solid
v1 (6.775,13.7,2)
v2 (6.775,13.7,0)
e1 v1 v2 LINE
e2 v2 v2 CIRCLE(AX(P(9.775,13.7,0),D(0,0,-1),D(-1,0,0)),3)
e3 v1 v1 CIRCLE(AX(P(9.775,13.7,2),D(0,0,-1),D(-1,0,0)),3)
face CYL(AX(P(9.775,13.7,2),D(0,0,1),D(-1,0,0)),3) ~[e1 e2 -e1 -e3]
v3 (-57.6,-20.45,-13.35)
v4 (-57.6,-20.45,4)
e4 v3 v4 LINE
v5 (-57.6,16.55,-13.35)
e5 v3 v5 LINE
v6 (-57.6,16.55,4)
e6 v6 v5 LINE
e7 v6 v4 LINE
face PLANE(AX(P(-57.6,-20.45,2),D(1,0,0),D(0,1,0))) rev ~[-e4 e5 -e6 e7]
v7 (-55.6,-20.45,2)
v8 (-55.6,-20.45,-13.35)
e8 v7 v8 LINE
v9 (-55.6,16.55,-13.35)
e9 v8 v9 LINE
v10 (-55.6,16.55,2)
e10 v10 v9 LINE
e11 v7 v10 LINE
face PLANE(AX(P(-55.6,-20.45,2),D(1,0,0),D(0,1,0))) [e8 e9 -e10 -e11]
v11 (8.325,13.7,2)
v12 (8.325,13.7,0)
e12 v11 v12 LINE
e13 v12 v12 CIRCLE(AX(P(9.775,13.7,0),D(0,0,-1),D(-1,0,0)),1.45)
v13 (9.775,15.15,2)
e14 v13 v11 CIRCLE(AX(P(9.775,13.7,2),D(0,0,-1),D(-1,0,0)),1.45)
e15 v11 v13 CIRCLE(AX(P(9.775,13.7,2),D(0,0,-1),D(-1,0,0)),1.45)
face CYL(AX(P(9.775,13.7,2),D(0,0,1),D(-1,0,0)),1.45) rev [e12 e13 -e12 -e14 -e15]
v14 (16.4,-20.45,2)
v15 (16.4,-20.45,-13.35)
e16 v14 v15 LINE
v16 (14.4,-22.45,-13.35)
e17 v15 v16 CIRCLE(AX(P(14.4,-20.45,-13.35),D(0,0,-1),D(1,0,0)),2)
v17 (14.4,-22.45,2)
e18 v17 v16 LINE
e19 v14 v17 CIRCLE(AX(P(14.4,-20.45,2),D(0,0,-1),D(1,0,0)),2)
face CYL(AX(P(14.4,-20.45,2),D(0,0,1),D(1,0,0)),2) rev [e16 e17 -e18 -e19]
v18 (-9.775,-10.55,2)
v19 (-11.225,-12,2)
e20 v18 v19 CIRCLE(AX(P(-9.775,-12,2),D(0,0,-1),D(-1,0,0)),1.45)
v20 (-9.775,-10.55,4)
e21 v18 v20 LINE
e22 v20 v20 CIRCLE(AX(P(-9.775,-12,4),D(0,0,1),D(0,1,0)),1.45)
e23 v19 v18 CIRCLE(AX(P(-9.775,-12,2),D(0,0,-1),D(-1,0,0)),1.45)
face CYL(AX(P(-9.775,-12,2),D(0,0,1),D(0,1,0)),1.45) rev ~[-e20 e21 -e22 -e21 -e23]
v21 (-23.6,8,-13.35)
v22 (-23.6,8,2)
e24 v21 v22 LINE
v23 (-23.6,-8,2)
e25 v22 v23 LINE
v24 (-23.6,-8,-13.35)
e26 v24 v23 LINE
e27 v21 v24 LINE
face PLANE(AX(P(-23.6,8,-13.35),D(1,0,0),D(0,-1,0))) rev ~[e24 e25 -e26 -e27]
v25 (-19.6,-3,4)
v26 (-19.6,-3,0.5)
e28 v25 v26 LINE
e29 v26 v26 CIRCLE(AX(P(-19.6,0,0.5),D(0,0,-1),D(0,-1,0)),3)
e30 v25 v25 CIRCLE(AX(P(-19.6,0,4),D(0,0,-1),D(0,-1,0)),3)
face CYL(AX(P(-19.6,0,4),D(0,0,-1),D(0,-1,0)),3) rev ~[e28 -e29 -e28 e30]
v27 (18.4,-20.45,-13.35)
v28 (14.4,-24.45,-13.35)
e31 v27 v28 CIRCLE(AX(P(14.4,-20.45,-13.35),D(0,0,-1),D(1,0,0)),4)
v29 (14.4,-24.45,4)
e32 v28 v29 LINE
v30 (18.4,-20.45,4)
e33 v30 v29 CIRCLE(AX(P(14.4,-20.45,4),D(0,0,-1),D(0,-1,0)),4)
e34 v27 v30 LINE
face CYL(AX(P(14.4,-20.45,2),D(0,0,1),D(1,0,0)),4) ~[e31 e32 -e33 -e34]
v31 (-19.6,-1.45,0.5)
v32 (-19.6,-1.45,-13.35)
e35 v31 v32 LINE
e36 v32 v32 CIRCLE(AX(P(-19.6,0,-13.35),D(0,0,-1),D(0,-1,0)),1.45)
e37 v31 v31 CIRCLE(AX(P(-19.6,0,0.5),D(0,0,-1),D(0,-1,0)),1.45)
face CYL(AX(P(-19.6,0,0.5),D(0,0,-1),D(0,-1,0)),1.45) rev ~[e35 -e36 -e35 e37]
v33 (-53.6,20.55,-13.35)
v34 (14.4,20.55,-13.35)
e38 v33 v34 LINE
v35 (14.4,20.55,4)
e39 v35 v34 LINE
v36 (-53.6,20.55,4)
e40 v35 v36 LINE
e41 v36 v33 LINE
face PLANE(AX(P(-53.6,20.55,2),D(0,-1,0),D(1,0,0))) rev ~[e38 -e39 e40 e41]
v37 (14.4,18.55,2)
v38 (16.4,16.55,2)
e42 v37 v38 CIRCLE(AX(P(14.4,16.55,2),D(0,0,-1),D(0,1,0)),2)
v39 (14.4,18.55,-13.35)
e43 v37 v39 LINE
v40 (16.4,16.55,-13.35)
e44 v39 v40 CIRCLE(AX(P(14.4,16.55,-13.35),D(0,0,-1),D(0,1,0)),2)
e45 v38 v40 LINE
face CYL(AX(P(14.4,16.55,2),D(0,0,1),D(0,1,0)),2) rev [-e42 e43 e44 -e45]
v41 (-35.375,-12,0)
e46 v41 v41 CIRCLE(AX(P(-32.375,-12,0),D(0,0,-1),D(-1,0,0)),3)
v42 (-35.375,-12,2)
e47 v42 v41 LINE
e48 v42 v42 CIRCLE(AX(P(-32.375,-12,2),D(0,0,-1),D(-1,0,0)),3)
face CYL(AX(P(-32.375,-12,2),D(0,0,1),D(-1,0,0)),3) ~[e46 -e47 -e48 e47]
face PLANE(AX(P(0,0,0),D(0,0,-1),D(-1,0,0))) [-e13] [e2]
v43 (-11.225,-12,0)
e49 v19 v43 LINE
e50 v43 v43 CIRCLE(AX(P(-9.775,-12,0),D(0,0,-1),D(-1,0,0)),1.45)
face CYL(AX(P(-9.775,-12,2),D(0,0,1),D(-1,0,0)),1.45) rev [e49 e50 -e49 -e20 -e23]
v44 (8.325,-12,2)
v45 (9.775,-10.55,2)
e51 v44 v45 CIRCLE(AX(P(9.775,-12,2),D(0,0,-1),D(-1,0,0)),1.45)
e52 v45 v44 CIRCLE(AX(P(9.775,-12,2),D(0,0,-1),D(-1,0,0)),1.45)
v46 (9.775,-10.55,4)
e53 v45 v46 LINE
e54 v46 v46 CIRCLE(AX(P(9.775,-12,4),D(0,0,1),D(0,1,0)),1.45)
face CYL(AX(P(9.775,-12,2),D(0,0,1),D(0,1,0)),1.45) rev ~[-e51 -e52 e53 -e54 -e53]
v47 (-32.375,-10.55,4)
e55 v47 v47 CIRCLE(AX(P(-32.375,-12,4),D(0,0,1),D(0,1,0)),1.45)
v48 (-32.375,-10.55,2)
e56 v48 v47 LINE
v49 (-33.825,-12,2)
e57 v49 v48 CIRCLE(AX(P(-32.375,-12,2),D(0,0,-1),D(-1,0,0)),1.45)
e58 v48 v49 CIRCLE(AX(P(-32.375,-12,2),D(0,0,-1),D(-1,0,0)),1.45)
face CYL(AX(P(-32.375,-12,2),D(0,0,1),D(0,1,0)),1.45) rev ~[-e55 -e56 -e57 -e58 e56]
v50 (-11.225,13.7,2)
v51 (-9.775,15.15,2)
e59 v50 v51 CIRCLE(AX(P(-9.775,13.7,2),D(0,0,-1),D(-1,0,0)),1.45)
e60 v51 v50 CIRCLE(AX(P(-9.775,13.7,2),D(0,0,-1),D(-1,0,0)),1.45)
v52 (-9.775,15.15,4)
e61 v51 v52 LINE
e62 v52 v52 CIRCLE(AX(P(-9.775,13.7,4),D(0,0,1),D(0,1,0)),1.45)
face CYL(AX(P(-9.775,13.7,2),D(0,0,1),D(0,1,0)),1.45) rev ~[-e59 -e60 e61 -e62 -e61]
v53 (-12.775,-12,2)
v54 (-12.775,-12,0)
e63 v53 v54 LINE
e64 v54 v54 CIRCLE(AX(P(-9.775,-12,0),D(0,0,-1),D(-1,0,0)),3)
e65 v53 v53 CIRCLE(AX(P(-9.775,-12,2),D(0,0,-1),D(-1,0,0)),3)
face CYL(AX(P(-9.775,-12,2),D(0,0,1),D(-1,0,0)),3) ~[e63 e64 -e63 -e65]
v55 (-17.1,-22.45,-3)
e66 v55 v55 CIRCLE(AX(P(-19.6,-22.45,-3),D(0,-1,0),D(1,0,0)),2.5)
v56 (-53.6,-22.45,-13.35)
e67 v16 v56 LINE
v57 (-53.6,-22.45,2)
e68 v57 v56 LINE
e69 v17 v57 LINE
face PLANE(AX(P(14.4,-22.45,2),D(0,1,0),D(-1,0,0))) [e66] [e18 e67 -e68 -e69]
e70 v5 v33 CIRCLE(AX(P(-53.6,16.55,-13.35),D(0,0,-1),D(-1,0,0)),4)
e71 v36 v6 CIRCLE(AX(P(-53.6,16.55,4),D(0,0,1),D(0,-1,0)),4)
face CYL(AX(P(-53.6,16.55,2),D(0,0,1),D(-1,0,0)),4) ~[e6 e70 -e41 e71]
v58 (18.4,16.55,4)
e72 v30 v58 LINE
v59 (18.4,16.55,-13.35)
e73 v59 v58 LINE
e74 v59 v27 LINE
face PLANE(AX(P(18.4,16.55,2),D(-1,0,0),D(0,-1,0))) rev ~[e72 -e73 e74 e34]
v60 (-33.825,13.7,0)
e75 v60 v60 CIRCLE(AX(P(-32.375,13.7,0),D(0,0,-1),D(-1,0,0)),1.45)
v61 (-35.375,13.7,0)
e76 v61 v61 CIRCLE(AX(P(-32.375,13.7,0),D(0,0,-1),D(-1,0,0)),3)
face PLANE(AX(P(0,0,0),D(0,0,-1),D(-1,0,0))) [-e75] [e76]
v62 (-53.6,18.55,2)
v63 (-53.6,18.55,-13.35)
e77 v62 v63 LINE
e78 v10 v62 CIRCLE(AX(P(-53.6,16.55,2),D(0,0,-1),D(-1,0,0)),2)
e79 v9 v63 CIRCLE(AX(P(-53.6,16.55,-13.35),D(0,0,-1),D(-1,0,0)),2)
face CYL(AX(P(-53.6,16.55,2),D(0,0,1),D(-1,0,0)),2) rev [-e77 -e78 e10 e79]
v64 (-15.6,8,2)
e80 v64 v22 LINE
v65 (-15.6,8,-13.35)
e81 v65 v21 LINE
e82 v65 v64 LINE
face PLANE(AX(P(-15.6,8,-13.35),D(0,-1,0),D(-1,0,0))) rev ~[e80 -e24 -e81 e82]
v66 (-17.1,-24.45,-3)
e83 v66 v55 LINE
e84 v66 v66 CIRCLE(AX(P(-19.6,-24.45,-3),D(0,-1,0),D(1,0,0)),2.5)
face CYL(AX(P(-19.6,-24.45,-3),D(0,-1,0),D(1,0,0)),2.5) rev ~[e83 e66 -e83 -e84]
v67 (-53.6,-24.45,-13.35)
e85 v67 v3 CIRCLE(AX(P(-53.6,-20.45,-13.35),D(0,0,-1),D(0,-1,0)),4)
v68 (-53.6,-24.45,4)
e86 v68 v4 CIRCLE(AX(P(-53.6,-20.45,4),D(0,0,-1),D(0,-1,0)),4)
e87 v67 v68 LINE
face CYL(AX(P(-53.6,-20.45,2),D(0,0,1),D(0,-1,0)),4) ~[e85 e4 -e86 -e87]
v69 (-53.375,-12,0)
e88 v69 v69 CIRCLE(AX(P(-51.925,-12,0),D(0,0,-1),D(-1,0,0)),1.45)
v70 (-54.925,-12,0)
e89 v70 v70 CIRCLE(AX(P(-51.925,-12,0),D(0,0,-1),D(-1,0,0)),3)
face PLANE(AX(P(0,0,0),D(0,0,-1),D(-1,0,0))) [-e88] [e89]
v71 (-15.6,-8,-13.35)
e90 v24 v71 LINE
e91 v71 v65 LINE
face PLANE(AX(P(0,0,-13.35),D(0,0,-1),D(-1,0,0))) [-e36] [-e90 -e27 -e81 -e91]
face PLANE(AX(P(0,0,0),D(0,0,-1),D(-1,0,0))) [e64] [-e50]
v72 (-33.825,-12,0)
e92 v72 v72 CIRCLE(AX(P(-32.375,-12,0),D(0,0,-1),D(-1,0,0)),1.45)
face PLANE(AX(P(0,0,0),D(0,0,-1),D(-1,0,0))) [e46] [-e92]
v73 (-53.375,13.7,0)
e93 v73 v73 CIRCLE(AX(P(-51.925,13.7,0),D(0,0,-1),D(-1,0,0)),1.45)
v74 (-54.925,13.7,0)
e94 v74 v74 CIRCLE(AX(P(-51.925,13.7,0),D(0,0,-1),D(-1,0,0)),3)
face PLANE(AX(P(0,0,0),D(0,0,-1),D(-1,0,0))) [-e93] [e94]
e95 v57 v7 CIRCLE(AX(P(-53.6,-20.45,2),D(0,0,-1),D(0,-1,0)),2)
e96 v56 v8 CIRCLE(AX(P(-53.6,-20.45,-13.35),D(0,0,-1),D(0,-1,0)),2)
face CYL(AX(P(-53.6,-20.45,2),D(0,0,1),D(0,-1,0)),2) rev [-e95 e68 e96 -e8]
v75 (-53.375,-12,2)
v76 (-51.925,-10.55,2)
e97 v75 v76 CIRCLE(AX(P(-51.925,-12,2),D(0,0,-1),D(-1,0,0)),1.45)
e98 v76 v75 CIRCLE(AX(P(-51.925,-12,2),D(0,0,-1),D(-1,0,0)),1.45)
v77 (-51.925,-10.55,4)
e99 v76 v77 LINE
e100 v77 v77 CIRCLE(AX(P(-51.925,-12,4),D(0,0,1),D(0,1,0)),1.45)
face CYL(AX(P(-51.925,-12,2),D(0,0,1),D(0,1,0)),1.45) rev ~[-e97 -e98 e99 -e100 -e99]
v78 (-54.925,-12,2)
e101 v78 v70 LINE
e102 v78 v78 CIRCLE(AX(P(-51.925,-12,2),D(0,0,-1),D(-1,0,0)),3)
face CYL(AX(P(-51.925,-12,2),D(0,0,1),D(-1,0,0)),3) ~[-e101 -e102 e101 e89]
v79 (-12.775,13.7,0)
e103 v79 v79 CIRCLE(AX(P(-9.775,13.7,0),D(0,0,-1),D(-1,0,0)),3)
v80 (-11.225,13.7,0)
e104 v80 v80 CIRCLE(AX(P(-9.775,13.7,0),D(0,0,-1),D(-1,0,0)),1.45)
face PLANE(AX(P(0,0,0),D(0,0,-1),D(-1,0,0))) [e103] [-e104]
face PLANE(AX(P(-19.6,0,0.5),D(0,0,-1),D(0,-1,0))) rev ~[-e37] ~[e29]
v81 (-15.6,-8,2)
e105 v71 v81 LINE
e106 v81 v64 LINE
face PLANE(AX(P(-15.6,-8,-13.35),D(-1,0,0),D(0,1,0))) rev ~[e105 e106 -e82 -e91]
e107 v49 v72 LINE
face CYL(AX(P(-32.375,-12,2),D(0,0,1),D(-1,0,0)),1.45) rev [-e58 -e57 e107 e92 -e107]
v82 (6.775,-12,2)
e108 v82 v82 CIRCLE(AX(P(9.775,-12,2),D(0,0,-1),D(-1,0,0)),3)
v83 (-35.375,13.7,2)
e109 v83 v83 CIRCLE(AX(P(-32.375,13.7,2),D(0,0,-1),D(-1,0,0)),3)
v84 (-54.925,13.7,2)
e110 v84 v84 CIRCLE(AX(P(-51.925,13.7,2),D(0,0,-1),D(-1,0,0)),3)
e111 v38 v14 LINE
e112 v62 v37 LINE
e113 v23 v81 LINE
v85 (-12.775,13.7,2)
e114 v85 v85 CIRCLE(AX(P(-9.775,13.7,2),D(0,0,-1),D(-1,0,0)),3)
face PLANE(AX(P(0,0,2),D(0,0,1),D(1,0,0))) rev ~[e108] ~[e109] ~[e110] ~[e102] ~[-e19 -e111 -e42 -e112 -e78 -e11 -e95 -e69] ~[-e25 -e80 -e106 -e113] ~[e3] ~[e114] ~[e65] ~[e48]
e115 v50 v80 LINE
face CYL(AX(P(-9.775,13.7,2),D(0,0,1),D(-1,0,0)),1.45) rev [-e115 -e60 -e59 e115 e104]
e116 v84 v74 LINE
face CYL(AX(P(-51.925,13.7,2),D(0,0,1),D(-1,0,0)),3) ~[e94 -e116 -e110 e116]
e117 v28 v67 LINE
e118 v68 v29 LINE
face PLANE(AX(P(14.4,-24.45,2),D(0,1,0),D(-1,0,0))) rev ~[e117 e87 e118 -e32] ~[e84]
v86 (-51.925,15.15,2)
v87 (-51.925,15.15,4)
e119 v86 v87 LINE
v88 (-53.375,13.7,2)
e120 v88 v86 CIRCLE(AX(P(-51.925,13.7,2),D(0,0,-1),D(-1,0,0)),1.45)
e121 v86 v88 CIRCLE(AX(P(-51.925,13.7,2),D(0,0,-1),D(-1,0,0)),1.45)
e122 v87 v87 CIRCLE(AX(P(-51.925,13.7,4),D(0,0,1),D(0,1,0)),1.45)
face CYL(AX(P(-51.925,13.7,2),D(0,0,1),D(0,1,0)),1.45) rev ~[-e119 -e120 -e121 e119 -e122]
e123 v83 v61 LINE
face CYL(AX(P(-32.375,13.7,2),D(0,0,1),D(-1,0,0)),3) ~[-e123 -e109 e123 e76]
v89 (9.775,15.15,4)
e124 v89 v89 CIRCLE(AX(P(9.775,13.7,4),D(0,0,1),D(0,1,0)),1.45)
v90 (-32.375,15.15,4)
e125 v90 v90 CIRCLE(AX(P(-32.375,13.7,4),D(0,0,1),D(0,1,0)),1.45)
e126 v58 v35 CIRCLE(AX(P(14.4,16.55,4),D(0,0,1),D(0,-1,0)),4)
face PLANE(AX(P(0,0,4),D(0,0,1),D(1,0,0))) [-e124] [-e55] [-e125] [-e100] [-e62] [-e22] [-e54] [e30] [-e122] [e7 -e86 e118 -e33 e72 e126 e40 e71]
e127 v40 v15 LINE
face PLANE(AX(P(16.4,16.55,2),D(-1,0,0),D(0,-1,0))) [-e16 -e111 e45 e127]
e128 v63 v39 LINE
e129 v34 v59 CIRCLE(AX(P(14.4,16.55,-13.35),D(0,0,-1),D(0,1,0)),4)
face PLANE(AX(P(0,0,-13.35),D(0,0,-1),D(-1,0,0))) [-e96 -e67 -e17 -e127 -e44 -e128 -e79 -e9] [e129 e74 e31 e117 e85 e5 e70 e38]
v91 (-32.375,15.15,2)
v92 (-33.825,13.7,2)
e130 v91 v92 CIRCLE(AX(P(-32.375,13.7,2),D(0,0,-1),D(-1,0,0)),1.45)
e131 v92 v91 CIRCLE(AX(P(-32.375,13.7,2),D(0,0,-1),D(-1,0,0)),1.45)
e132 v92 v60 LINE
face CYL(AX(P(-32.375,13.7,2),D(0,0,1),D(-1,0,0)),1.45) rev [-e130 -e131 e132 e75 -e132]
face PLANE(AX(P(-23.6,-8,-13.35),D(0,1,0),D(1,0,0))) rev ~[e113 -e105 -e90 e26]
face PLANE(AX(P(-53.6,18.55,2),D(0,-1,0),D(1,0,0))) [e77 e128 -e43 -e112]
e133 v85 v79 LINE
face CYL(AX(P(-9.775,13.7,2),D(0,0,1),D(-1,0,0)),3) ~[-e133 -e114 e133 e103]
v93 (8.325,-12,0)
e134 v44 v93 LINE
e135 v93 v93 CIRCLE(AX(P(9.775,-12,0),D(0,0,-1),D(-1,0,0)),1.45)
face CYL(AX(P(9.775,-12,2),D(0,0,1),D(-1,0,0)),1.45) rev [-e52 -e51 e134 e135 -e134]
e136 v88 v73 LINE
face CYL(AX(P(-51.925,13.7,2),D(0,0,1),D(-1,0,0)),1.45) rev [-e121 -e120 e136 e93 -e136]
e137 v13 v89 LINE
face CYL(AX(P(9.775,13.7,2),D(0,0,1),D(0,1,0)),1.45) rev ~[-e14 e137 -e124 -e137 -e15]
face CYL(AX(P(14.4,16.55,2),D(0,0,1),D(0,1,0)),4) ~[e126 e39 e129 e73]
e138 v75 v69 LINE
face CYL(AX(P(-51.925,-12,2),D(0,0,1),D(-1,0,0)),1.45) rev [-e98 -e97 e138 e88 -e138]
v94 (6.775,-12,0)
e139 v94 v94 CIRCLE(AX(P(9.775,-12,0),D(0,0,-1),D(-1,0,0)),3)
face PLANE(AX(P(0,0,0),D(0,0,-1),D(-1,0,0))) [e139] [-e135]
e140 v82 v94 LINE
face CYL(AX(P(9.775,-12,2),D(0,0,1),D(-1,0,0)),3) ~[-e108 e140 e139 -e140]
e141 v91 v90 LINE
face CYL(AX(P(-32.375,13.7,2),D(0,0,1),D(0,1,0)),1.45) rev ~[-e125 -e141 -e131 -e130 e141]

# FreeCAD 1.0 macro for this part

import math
import FreeCAD as App
import Part
import Sketcher
Q = App.Units.Quantity


def edges_at(feature, points):
    """Names of the edges that pass closest to the given points."""
    edges = feature.Shape.Edges
    near = lambda p: min(range(len(edges)), key=lambda i: edges[i].distToShape(Part.Vertex(*p))[0])
    return sorted({f"Edge{near(p) + 1}" for p in points})


def add_polygon(sketch, points):
    """Adds a closed chain of lines whose ends are joined by coincident constraints."""
    first, n = sketch.GeometryCount, len(points)
    for a, b in zip(points, points[1:] + points[:1]):
        sketch.addGeometry(Part.LineSegment(App.Vector(*a, 0), App.Vector(*b, 0)), False)
    for i in range(n):
        sketch.addConstraint(Sketcher.Constraint("Coincident", first + i, 2, first + (i + 1) % n, 1))

doc = App.newDocument("Part")
body = doc.addObject("PartDesign::Body", "Body")

# Sketch on XY plane
sketch1 = body.newObject("Sketcher::SketchObject", "Sketch")
sketch1.AttachmentSupport = (doc.getObject("XY_Plane"), [""])
sketch1.MapMode = "FlatFace"
sketch1.AttachmentOffset = App.Placement(App.Vector(0, 0, 2), App.Rotation())
add_polygon(sketch1, [(18.4, -24.45), (18.4, 20.55), (-57.6, 20.55), (-57.6, -24.45)])  # lines 0-3
sketch1.addConstraint(Sketcher.Constraint("Vertical", 0))
sketch1.addConstraint(Sketcher.Constraint("Horizontal", 1))
sketch1.addConstraint(Sketcher.Constraint("Vertical", 2))
sketch1.addConstraint(Sketcher.Constraint("Horizontal", 3))
sketch1.addConstraint(Sketcher.Constraint("DistanceX", 1, 2, 1, 1, Q("76 mm")))
sketch1.addConstraint(Sketcher.Constraint("DistanceY", 0, 1, 0, 2, Q("45 mm")))
sketch1.addConstraint(Sketcher.Constraint("DistanceX", -1, 1, 0, 2, Q("18.4 mm")))
sketch1.addConstraint(Sketcher.Constraint("DistanceY", -1, 1, 0, 2, Q("20.55 mm")))
pad1 = body.newObject("PartDesign::Pad", "Pad")
pad1.Profile = sketch1
pad1.Length = 2

# Sketch on XY plane
sketch2 = body.newObject("Sketcher::SketchObject", "Sketch001")
sketch2.AttachmentSupport = (doc.getObject("XY_Plane"), [""])
sketch2.MapMode = "FlatFace"
sketch2.AttachmentOffset = App.Placement(App.Vector(0, 0, 2), App.Rotation())
sketch2.addGeometry(Part.Circle(App.Vector(-51.925, 13.7, 0), App.Vector(0, 0, 1), 3), False)
sketch2.addGeometry(Part.Circle(App.Vector(-51.925, 13.7, 0), App.Vector(0, 0, 1), 1.45), False)
sketch2.addGeometry(Part.Circle(App.Vector(-51.925, -12, 0), App.Vector(0, 0, 1), 3), False)
sketch2.addGeometry(Part.Circle(App.Vector(-51.925, -12, 0), App.Vector(0, 0, 1), 1.45), False)
sketch2.addGeometry(Part.Circle(App.Vector(-32.375, -12, 0), App.Vector(0, 0, 1), 3), False)
sketch2.addGeometry(Part.Circle(App.Vector(-32.375, -12, 0), App.Vector(0, 0, 1), 1.45), False)
sketch2.addGeometry(Part.Circle(App.Vector(-32.375, 13.7, 0), App.Vector(0, 0, 1), 3), False)
sketch2.addGeometry(Part.Circle(App.Vector(-32.375, 13.7, 0), App.Vector(0, 0, 1), 1.45), False)
sketch2.addGeometry(Part.Circle(App.Vector(-9.775, 13.7, 0), App.Vector(0, 0, 1), 3), False)
sketch2.addGeometry(Part.Circle(App.Vector(-9.775, 13.7, 0), App.Vector(0, 0, 1), 1.45), False)
sketch2.addGeometry(Part.Circle(App.Vector(-9.775, -12, 0), App.Vector(0, 0, 1), 3), False)
sketch2.addGeometry(Part.Circle(App.Vector(-9.775, -12, 0), App.Vector(0, 0, 1), 1.45), False)
sketch2.addGeometry(Part.Circle(App.Vector(9.775, -12, 0), App.Vector(0, 0, 1), 3), False)
sketch2.addGeometry(Part.Circle(App.Vector(9.775, -12, 0), App.Vector(0, 0, 1), 1.45), False)
sketch2.addGeometry(Part.Circle(App.Vector(9.775, 13.7, 0), App.Vector(0, 0, 1), 3), False)
sketch2.addGeometry(Part.Circle(App.Vector(9.775, 13.7, 0), App.Vector(0, 0, 1), 1.45), False)
sketch2.addConstraint(Sketcher.Constraint("Coincident", 1, 3, 0, 3))
sketch2.addConstraint(Sketcher.Constraint("Coincident", 3, 3, 2, 3))
sketch2.addConstraint(Sketcher.Constraint("Coincident", 5, 3, 4, 3))
sketch2.addConstraint(Sketcher.Constraint("Coincident", 7, 3, 6, 3))
sketch2.addConstraint(Sketcher.Constraint("Coincident", 9, 3, 8, 3))
sketch2.addConstraint(Sketcher.Constraint("Coincident", 11, 3, 10, 3))
sketch2.addConstraint(Sketcher.Constraint("Coincident", 13, 3, 12, 3))
sketch2.addConstraint(Sketcher.Constraint("Coincident", 15, 3, 14, 3))
sketch2.addConstraint(Sketcher.Constraint("Equal", 0, 2))
sketch2.addConstraint(Sketcher.Constraint("Equal", 1, 3))
sketch2.addConstraint(Sketcher.Constraint("Equal", 2, 4))
sketch2.addConstraint(Sketcher.Constraint("Equal", 3, 5))
sketch2.addConstraint(Sketcher.Constraint("Equal", 4, 6))
sketch2.addConstraint(Sketcher.Constraint("Equal", 5, 7))
sketch2.addConstraint(Sketcher.Constraint("Equal", 6, 8))
sketch2.addConstraint(Sketcher.Constraint("Equal", 7, 9))
sketch2.addConstraint(Sketcher.Constraint("Equal", 8, 10))
sketch2.addConstraint(Sketcher.Constraint("Equal", 9, 11))
sketch2.addConstraint(Sketcher.Constraint("Equal", 10, 12))
sketch2.addConstraint(Sketcher.Constraint("Equal", 11, 13))
sketch2.addConstraint(Sketcher.Constraint("Equal", 12, 14))
sketch2.addConstraint(Sketcher.Constraint("Equal", 13, 15))
sketch2.addConstraint(Sketcher.Constraint("Symmetric", 10, 3, 12, 3, -2))
sketch2.addConstraint(Sketcher.Constraint("Symmetric", 8, 3, 14, 3, -2))
sketch2.addConstraint(Sketcher.Constraint("Horizontal", 3, 3, 4, 3))
sketch2.addConstraint(Sketcher.Constraint("Horizontal", 1, 3, 6, 3))
sketch2.addConstraint(Sketcher.Constraint("Horizontal", 7, 3, 8, 3))
sketch2.addConstraint(Sketcher.Constraint("Horizontal", 5, 3, 10, 3))
sketch2.addConstraint(Sketcher.Constraint("Vertical", 1, 3, 2, 3))
sketch2.addConstraint(Sketcher.Constraint("Vertical", 5, 3, 6, 3))
sketch2.addConstraint(Sketcher.Constraint("Vertical", 9, 3, 10, 3))
sketch2.addConstraint(Sketcher.Constraint("Diameter", 0, Q("6 mm")))
sketch2.addConstraint(Sketcher.Constraint("Diameter", 1, Q("2.9 mm")))
sketch2.addConstraint(Sketcher.Constraint("DistanceY", 2, 3, -1, 1, Q("12 mm")))
sketch2.addConstraint(Sketcher.Constraint("DistanceY", -1, 1, 0, 3, Q("13.7 mm")))
sketch2.addConstraint(Sketcher.Constraint("DistanceX", 6, 3, 8, 3, Q("22.6 mm")))
sketch2.addConstraint(Sketcher.Constraint("DistanceX", 2, 3, 4, 3, Q("19.55 mm")))
sketch2.addConstraint(Sketcher.Constraint("DistanceX", 10, 3, 12, 3, Q("19.55 mm")))
pad2 = body.newObject("PartDesign::Pad", "Pad001")
pad2.Profile = sketch2
pad2.Length = 2
pad2.Reversed = True
doc.recompute()

fillet = body.newObject("PartDesign::Fillet", "Fillet")
fillet.Base = (pad2, edges_at(pad2, [
    (18.4, 20.55, 3),
    (18.4, -24.45, 3),
    (-57.6, -24.45, 3),
    (-57.6, 20.55, 3),
]))
fillet.Radius = 4

# Sketch on XY plane
sketch3 = body.newObject("Sketcher::SketchObject", "Sketch002")
sketch3.AttachmentSupport = (doc.getObject("XY_Plane"), [""])
sketch3.MapMode = "FlatFace"
sketch3.AttachmentOffset = App.Placement(App.Vector(0, 0, 2), App.Rotation())
sketch3.addGeometry(Part.Circle(App.Vector(-51.925, 13.7, 0), App.Vector(0, 0, 1), 1.45), False)
sketch3.addGeometry(Part.Circle(App.Vector(-51.925, -12, 0), App.Vector(0, 0, 1), 1.45), False)
sketch3.addGeometry(Part.Circle(App.Vector(-32.375, -12, 0), App.Vector(0, 0, 1), 1.45), False)
sketch3.addGeometry(Part.Circle(App.Vector(-32.375, 13.7, 0), App.Vector(0, 0, 1), 1.45), False)
sketch3.addGeometry(Part.Circle(App.Vector(-9.775, 13.7, 0), App.Vector(0, 0, 1), 1.45), False)
sketch3.addGeometry(Part.Circle(App.Vector(9.775, 13.7, 0), App.Vector(0, 0, 1), 1.45), False)
sketch3.addGeometry(Part.Circle(App.Vector(-9.775, -12, 0), App.Vector(0, 0, 1), 1.45), False)
sketch3.addGeometry(Part.Circle(App.Vector(9.775, -12, 0), App.Vector(0, 0, 1), 1.45), False)
sketch3.addConstraint(Sketcher.Constraint("Equal", 0, 1))
sketch3.addConstraint(Sketcher.Constraint("Equal", 1, 2))
sketch3.addConstraint(Sketcher.Constraint("Equal", 2, 3))
sketch3.addConstraint(Sketcher.Constraint("Equal", 3, 4))
sketch3.addConstraint(Sketcher.Constraint("Equal", 4, 5))
sketch3.addConstraint(Sketcher.Constraint("Equal", 5, 6))
sketch3.addConstraint(Sketcher.Constraint("Equal", 6, 7))
sketch3.addConstraint(Sketcher.Constraint("Symmetric", 4, 3, 5, 3, -2))
sketch3.addConstraint(Sketcher.Constraint("Symmetric", 6, 3, 7, 3, -2))
sketch3.addConstraint(Sketcher.Constraint("Horizontal", 1, 3, 2, 3))
sketch3.addConstraint(Sketcher.Constraint("Horizontal", 0, 3, 3, 3))
sketch3.addConstraint(Sketcher.Constraint("Horizontal", 3, 3, 4, 3))
sketch3.addConstraint(Sketcher.Constraint("Horizontal", 2, 3, 6, 3))
sketch3.addConstraint(Sketcher.Constraint("Vertical", 0, 3, 1, 3))
sketch3.addConstraint(Sketcher.Constraint("Vertical", 2, 3, 3, 3))
sketch3.addConstraint(Sketcher.Constraint("Vertical", 4, 3, 6, 3))
sketch3.addConstraint(Sketcher.Constraint("Diameter", 0, Q("2.9 mm")))
sketch3.addConstraint(Sketcher.Constraint("DistanceY", 1, 3, -1, 1, Q("12 mm")))
sketch3.addConstraint(Sketcher.Constraint("DistanceY", -1, 1, 0, 3, Q("13.7 mm")))
sketch3.addConstraint(Sketcher.Constraint("DistanceX", 3, 3, 4, 3, Q("22.6 mm")))
sketch3.addConstraint(Sketcher.Constraint("DistanceX", 0, 3, 5, 3, Q("61.7 mm")))
sketch3.addConstraint(Sketcher.Constraint("DistanceX", 1, 3, 2, 3, Q("19.55 mm")))
doc.recompute()
hole = body.newObject("PartDesign::Hole", "Hole")
hole.Profile = sketch3
hole.ThreadType = "None"
hole.Diameter = 2.9
hole.DepthType = "ThroughAll"
hole.Reversed = True

# Sketch on XY plane
sketch4 = body.newObject("Sketcher::SketchObject", "Sketch003")
sketch4.AttachmentSupport = (doc.getObject("XY_Plane"), [""])
sketch4.MapMode = "FlatFace"
sketch4.AttachmentOffset = App.Placement(App.Vector(0, 0, 2), App.Rotation())
sketch4.addGeometry(Part.LineSegment(App.Vector(-57.6, -20.45, 0), App.Vector(-57.6, 16.55, 0)), False)
sketch4.addGeometry(Part.ArcOfCircle(Part.Circle(App.Vector(-53.6, 16.55, 0), App.Vector(0, 0, 1), 4), math.radians(90), math.radians(180)), False)
sketch4.addGeometry(Part.LineSegment(App.Vector(-53.6, 20.55, 0), App.Vector(14.4, 20.55, 0)), False)
sketch4.addGeometry(Part.ArcOfCircle(Part.Circle(App.Vector(14.4, 16.55, 0), App.Vector(0, 0, 1), 4), math.radians(0), math.radians(90)), False)
sketch4.addGeometry(Part.LineSegment(App.Vector(18.4, 16.55, 0), App.Vector(18.4, -20.45, 0)), False)
sketch4.addGeometry(Part.ArcOfCircle(Part.Circle(App.Vector(14.4, -20.45, 0), App.Vector(0, 0, 1), 4), math.radians(-90), math.radians(0)), False)
sketch4.addGeometry(Part.LineSegment(App.Vector(14.4, -24.45, 0), App.Vector(-53.6, -24.45, 0)), False)
sketch4.addGeometry(Part.ArcOfCircle(Part.Circle(App.Vector(-53.6, -20.45, 0), App.Vector(0, 0, 1), 4), math.radians(180), math.radians(270)), False)
sketch4.addGeometry(Part.ArcOfCircle(Part.Circle(App.Vector(-53.6, 16.55, 0), App.Vector(0, 0, 1), 2), math.radians(90), math.radians(180)), False)
sketch4.addGeometry(Part.LineSegment(App.Vector(-55.6, 16.55, 0), App.Vector(-55.6, -20.45, 0)), False)
sketch4.addGeometry(Part.ArcOfCircle(Part.Circle(App.Vector(-53.6, -20.45, 0), App.Vector(0, 0, 1), 2), math.radians(180), math.radians(270)), False)
sketch4.addGeometry(Part.LineSegment(App.Vector(-53.6, -22.45, 0), App.Vector(14.4, -22.45, 0)), False)
sketch4.addGeometry(Part.ArcOfCircle(Part.Circle(App.Vector(14.4, -20.45, 0), App.Vector(0, 0, 1), 2), math.radians(-90), math.radians(0)), False)
sketch4.addGeometry(Part.LineSegment(App.Vector(16.4, -20.45, 0), App.Vector(16.4, 16.55, 0)), False)
sketch4.addGeometry(Part.ArcOfCircle(Part.Circle(App.Vector(14.4, 16.55, 0), App.Vector(0, 0, 1), 2), math.radians(0), math.radians(90)), False)
sketch4.addGeometry(Part.LineSegment(App.Vector(14.4, 18.55, 0), App.Vector(-53.6, 18.55, 0)), False)
sketch4.addConstraint(Sketcher.Constraint("Tangent", 0, 2, 1, 2))
sketch4.addConstraint(Sketcher.Constraint("Tangent", 1, 1, 2, 1))
sketch4.addConstraint(Sketcher.Constraint("Tangent", 2, 2, 3, 2))
sketch4.addConstraint(Sketcher.Constraint("Tangent", 3, 1, 4, 1))
sketch4.addConstraint(Sketcher.Constraint("Tangent", 4, 2, 5, 2))
sketch4.addConstraint(Sketcher.Constraint("Tangent", 5, 1, 6, 1))
sketch4.addConstraint(Sketcher.Constraint("Tangent", 6, 2, 7, 2))
sketch4.addConstraint(Sketcher.Constraint("Tangent", 7, 1, 0, 1))
sketch4.addConstraint(Sketcher.Constraint("Tangent", 8, 2, 9, 1))
sketch4.addConstraint(Sketcher.Constraint("Tangent", 9, 2, 10, 1))
sketch4.addConstraint(Sketcher.Constraint("Tangent", 10, 2, 11, 1))
sketch4.addConstraint(Sketcher.Constraint("Tangent", 11, 2, 12, 1))
sketch4.addConstraint(Sketcher.Constraint("Tangent", 12, 2, 13, 1))
sketch4.addConstraint(Sketcher.Constraint("Tangent", 13, 2, 14, 1))
sketch4.addConstraint(Sketcher.Constraint("Tangent", 14, 2, 15, 1))
sketch4.addConstraint(Sketcher.Constraint("Tangent", 15, 2, 8, 1))
sketch4.addConstraint(Sketcher.Constraint("Vertical", 0))
sketch4.addConstraint(Sketcher.Constraint("Horizontal", 2))
sketch4.addConstraint(Sketcher.Constraint("Vertical", 4))
sketch4.addConstraint(Sketcher.Constraint("Horizontal", 6))
sketch4.addConstraint(Sketcher.Constraint("Vertical", 9))
sketch4.addConstraint(Sketcher.Constraint("Horizontal", 11))
sketch4.addConstraint(Sketcher.Constraint("Vertical", 13))
sketch4.addConstraint(Sketcher.Constraint("Horizontal", 15))
sketch4.addConstraint(Sketcher.Constraint("Coincident", 8, 3, 1, 3))
sketch4.addConstraint(Sketcher.Constraint("Coincident", 10, 3, 7, 3))
sketch4.addConstraint(Sketcher.Constraint("Coincident", 12, 3, 5, 3))
sketch4.addConstraint(Sketcher.Constraint("Equal", 1, 3))
sketch4.addConstraint(Sketcher.Constraint("Equal", 3, 5))
sketch4.addConstraint(Sketcher.Constraint("Equal", 5, 7))
sketch4.addConstraint(Sketcher.Constraint("Equal", 12, 14))
sketch4.addConstraint(Sketcher.Constraint("Radius", 8, Q("2 mm")))
sketch4.addConstraint(Sketcher.Constraint("Radius", 1, Q("4 mm")))
sketch4.addConstraint(Sketcher.Constraint("DistanceX", 2, 1, 2, 2, Q("68 mm")))
sketch4.addConstraint(Sketcher.Constraint("DistanceY", 0, 1, 0, 2, Q("37 mm")))
sketch4.addConstraint(Sketcher.Constraint("DistanceX", 1, 3, -1, 1, Q("53.6 mm")))
sketch4.addConstraint(Sketcher.Constraint("DistanceY", -1, 1, 1, 3, Q("16.55 mm")))
pad3 = body.newObject("PartDesign::Pad", "Pad002")
pad3.Profile = sketch4
pad3.Length = 15.35
pad3.Reversed = True

# Sketch on XZ plane
sketch5 = body.newObject("Sketcher::SketchObject", "Sketch004")
sketch5.AttachmentSupport = (doc.getObject("XZ_Plane"), [""])
sketch5.MapMode = "FlatFace"
sketch5.AttachmentOffset = App.Placement(App.Vector(0, 0, 24.45), App.Rotation())
sketch5.addGeometry(Part.Circle(App.Vector(-19.6, -3, 0), App.Vector(0, 0, 1), 2.5), False)
sketch5.addConstraint(Sketcher.Constraint("Diameter", 0, Q("5 mm")))
sketch5.addConstraint(Sketcher.Constraint("DistanceY", 0, 3, -1, 1, Q("3 mm")))
sketch5.addConstraint(Sketcher.Constraint("DistanceX", 0, 3, -1, 1, Q("19.6 mm")))
pocket1 = body.newObject("PartDesign::Pocket", "Pocket")
pocket1.Profile = sketch5
pocket1.Length = 12

# Sketch on XY plane
sketch6 = body.newObject("Sketcher::SketchObject", "Sketch005")
sketch6.AttachmentSupport = (doc.getObject("XY_Plane"), [""])
sketch6.MapMode = "FlatFace"
sketch6.AttachmentOffset = App.Placement(App.Vector(0, 0, -13.35), App.Rotation())
add_polygon(sketch6, [(-23.6, 8), (-15.6, 8), (-15.6, -8), (-23.6, -8)])  # lines 0-3
sketch6.addConstraint(Sketcher.Constraint("Horizontal", 0))
sketch6.addConstraint(Sketcher.Constraint("Vertical", 1))
sketch6.addConstraint(Sketcher.Constraint("Horizontal", 2))
sketch6.addConstraint(Sketcher.Constraint("Vertical", 3))
sketch6.addConstraint(Sketcher.Constraint("DistanceX", 0, 1, 0, 2, Q("8 mm")))
sketch6.addConstraint(Sketcher.Constraint("DistanceY", 1, 2, 1, 1, Q("16 mm")))
sketch6.addConstraint(Sketcher.Constraint("DistanceY", -1, 1, 0, 2, Q("8 mm")))
sketch6.addConstraint(Sketcher.Constraint("DistanceX", 0, 2, -1, 1, Q("15.6 mm")))
pad4 = body.newObject("PartDesign::Pad", "Pad003")
pad4.Profile = sketch6
pad4.Type = "UpToFirst"

# Sketch on XY plane
sketch7 = body.newObject("Sketcher::SketchObject", "Sketch006")
sketch7.AttachmentSupport = (doc.getObject("XY_Plane"), [""])
sketch7.MapMode = "FlatFace"
sketch7.AttachmentOffset = App.Placement(App.Vector(0, 0, 4), App.Rotation())
sketch7.addGeometry(Part.Circle(App.Vector(-19.6, 0, 0), App.Vector(0, 0, 1), 1.45), False)
sketch7.addConstraint(Sketcher.Constraint("PointOnObject", 0, 3, -1))
sketch7.addConstraint(Sketcher.Constraint("Diameter", 0, Q("2.9 mm")))
sketch7.addConstraint(Sketcher.Constraint("DistanceX", 0, 3, -1, 1, Q("19.6 mm")))
doc.recompute()
hole2 = body.newObject("PartDesign::Hole", "Hole001")
hole2.Profile = sketch7
hole2.ThreadType = "None"
hole2.Diameter = 2.9
hole2.DepthType = "ThroughAll"
hole2.HoleCutType = "Counterbore"
hole2.HoleCutDiameter = 6
hole2.HoleCutDepth = 3.5

doc.recompute()
